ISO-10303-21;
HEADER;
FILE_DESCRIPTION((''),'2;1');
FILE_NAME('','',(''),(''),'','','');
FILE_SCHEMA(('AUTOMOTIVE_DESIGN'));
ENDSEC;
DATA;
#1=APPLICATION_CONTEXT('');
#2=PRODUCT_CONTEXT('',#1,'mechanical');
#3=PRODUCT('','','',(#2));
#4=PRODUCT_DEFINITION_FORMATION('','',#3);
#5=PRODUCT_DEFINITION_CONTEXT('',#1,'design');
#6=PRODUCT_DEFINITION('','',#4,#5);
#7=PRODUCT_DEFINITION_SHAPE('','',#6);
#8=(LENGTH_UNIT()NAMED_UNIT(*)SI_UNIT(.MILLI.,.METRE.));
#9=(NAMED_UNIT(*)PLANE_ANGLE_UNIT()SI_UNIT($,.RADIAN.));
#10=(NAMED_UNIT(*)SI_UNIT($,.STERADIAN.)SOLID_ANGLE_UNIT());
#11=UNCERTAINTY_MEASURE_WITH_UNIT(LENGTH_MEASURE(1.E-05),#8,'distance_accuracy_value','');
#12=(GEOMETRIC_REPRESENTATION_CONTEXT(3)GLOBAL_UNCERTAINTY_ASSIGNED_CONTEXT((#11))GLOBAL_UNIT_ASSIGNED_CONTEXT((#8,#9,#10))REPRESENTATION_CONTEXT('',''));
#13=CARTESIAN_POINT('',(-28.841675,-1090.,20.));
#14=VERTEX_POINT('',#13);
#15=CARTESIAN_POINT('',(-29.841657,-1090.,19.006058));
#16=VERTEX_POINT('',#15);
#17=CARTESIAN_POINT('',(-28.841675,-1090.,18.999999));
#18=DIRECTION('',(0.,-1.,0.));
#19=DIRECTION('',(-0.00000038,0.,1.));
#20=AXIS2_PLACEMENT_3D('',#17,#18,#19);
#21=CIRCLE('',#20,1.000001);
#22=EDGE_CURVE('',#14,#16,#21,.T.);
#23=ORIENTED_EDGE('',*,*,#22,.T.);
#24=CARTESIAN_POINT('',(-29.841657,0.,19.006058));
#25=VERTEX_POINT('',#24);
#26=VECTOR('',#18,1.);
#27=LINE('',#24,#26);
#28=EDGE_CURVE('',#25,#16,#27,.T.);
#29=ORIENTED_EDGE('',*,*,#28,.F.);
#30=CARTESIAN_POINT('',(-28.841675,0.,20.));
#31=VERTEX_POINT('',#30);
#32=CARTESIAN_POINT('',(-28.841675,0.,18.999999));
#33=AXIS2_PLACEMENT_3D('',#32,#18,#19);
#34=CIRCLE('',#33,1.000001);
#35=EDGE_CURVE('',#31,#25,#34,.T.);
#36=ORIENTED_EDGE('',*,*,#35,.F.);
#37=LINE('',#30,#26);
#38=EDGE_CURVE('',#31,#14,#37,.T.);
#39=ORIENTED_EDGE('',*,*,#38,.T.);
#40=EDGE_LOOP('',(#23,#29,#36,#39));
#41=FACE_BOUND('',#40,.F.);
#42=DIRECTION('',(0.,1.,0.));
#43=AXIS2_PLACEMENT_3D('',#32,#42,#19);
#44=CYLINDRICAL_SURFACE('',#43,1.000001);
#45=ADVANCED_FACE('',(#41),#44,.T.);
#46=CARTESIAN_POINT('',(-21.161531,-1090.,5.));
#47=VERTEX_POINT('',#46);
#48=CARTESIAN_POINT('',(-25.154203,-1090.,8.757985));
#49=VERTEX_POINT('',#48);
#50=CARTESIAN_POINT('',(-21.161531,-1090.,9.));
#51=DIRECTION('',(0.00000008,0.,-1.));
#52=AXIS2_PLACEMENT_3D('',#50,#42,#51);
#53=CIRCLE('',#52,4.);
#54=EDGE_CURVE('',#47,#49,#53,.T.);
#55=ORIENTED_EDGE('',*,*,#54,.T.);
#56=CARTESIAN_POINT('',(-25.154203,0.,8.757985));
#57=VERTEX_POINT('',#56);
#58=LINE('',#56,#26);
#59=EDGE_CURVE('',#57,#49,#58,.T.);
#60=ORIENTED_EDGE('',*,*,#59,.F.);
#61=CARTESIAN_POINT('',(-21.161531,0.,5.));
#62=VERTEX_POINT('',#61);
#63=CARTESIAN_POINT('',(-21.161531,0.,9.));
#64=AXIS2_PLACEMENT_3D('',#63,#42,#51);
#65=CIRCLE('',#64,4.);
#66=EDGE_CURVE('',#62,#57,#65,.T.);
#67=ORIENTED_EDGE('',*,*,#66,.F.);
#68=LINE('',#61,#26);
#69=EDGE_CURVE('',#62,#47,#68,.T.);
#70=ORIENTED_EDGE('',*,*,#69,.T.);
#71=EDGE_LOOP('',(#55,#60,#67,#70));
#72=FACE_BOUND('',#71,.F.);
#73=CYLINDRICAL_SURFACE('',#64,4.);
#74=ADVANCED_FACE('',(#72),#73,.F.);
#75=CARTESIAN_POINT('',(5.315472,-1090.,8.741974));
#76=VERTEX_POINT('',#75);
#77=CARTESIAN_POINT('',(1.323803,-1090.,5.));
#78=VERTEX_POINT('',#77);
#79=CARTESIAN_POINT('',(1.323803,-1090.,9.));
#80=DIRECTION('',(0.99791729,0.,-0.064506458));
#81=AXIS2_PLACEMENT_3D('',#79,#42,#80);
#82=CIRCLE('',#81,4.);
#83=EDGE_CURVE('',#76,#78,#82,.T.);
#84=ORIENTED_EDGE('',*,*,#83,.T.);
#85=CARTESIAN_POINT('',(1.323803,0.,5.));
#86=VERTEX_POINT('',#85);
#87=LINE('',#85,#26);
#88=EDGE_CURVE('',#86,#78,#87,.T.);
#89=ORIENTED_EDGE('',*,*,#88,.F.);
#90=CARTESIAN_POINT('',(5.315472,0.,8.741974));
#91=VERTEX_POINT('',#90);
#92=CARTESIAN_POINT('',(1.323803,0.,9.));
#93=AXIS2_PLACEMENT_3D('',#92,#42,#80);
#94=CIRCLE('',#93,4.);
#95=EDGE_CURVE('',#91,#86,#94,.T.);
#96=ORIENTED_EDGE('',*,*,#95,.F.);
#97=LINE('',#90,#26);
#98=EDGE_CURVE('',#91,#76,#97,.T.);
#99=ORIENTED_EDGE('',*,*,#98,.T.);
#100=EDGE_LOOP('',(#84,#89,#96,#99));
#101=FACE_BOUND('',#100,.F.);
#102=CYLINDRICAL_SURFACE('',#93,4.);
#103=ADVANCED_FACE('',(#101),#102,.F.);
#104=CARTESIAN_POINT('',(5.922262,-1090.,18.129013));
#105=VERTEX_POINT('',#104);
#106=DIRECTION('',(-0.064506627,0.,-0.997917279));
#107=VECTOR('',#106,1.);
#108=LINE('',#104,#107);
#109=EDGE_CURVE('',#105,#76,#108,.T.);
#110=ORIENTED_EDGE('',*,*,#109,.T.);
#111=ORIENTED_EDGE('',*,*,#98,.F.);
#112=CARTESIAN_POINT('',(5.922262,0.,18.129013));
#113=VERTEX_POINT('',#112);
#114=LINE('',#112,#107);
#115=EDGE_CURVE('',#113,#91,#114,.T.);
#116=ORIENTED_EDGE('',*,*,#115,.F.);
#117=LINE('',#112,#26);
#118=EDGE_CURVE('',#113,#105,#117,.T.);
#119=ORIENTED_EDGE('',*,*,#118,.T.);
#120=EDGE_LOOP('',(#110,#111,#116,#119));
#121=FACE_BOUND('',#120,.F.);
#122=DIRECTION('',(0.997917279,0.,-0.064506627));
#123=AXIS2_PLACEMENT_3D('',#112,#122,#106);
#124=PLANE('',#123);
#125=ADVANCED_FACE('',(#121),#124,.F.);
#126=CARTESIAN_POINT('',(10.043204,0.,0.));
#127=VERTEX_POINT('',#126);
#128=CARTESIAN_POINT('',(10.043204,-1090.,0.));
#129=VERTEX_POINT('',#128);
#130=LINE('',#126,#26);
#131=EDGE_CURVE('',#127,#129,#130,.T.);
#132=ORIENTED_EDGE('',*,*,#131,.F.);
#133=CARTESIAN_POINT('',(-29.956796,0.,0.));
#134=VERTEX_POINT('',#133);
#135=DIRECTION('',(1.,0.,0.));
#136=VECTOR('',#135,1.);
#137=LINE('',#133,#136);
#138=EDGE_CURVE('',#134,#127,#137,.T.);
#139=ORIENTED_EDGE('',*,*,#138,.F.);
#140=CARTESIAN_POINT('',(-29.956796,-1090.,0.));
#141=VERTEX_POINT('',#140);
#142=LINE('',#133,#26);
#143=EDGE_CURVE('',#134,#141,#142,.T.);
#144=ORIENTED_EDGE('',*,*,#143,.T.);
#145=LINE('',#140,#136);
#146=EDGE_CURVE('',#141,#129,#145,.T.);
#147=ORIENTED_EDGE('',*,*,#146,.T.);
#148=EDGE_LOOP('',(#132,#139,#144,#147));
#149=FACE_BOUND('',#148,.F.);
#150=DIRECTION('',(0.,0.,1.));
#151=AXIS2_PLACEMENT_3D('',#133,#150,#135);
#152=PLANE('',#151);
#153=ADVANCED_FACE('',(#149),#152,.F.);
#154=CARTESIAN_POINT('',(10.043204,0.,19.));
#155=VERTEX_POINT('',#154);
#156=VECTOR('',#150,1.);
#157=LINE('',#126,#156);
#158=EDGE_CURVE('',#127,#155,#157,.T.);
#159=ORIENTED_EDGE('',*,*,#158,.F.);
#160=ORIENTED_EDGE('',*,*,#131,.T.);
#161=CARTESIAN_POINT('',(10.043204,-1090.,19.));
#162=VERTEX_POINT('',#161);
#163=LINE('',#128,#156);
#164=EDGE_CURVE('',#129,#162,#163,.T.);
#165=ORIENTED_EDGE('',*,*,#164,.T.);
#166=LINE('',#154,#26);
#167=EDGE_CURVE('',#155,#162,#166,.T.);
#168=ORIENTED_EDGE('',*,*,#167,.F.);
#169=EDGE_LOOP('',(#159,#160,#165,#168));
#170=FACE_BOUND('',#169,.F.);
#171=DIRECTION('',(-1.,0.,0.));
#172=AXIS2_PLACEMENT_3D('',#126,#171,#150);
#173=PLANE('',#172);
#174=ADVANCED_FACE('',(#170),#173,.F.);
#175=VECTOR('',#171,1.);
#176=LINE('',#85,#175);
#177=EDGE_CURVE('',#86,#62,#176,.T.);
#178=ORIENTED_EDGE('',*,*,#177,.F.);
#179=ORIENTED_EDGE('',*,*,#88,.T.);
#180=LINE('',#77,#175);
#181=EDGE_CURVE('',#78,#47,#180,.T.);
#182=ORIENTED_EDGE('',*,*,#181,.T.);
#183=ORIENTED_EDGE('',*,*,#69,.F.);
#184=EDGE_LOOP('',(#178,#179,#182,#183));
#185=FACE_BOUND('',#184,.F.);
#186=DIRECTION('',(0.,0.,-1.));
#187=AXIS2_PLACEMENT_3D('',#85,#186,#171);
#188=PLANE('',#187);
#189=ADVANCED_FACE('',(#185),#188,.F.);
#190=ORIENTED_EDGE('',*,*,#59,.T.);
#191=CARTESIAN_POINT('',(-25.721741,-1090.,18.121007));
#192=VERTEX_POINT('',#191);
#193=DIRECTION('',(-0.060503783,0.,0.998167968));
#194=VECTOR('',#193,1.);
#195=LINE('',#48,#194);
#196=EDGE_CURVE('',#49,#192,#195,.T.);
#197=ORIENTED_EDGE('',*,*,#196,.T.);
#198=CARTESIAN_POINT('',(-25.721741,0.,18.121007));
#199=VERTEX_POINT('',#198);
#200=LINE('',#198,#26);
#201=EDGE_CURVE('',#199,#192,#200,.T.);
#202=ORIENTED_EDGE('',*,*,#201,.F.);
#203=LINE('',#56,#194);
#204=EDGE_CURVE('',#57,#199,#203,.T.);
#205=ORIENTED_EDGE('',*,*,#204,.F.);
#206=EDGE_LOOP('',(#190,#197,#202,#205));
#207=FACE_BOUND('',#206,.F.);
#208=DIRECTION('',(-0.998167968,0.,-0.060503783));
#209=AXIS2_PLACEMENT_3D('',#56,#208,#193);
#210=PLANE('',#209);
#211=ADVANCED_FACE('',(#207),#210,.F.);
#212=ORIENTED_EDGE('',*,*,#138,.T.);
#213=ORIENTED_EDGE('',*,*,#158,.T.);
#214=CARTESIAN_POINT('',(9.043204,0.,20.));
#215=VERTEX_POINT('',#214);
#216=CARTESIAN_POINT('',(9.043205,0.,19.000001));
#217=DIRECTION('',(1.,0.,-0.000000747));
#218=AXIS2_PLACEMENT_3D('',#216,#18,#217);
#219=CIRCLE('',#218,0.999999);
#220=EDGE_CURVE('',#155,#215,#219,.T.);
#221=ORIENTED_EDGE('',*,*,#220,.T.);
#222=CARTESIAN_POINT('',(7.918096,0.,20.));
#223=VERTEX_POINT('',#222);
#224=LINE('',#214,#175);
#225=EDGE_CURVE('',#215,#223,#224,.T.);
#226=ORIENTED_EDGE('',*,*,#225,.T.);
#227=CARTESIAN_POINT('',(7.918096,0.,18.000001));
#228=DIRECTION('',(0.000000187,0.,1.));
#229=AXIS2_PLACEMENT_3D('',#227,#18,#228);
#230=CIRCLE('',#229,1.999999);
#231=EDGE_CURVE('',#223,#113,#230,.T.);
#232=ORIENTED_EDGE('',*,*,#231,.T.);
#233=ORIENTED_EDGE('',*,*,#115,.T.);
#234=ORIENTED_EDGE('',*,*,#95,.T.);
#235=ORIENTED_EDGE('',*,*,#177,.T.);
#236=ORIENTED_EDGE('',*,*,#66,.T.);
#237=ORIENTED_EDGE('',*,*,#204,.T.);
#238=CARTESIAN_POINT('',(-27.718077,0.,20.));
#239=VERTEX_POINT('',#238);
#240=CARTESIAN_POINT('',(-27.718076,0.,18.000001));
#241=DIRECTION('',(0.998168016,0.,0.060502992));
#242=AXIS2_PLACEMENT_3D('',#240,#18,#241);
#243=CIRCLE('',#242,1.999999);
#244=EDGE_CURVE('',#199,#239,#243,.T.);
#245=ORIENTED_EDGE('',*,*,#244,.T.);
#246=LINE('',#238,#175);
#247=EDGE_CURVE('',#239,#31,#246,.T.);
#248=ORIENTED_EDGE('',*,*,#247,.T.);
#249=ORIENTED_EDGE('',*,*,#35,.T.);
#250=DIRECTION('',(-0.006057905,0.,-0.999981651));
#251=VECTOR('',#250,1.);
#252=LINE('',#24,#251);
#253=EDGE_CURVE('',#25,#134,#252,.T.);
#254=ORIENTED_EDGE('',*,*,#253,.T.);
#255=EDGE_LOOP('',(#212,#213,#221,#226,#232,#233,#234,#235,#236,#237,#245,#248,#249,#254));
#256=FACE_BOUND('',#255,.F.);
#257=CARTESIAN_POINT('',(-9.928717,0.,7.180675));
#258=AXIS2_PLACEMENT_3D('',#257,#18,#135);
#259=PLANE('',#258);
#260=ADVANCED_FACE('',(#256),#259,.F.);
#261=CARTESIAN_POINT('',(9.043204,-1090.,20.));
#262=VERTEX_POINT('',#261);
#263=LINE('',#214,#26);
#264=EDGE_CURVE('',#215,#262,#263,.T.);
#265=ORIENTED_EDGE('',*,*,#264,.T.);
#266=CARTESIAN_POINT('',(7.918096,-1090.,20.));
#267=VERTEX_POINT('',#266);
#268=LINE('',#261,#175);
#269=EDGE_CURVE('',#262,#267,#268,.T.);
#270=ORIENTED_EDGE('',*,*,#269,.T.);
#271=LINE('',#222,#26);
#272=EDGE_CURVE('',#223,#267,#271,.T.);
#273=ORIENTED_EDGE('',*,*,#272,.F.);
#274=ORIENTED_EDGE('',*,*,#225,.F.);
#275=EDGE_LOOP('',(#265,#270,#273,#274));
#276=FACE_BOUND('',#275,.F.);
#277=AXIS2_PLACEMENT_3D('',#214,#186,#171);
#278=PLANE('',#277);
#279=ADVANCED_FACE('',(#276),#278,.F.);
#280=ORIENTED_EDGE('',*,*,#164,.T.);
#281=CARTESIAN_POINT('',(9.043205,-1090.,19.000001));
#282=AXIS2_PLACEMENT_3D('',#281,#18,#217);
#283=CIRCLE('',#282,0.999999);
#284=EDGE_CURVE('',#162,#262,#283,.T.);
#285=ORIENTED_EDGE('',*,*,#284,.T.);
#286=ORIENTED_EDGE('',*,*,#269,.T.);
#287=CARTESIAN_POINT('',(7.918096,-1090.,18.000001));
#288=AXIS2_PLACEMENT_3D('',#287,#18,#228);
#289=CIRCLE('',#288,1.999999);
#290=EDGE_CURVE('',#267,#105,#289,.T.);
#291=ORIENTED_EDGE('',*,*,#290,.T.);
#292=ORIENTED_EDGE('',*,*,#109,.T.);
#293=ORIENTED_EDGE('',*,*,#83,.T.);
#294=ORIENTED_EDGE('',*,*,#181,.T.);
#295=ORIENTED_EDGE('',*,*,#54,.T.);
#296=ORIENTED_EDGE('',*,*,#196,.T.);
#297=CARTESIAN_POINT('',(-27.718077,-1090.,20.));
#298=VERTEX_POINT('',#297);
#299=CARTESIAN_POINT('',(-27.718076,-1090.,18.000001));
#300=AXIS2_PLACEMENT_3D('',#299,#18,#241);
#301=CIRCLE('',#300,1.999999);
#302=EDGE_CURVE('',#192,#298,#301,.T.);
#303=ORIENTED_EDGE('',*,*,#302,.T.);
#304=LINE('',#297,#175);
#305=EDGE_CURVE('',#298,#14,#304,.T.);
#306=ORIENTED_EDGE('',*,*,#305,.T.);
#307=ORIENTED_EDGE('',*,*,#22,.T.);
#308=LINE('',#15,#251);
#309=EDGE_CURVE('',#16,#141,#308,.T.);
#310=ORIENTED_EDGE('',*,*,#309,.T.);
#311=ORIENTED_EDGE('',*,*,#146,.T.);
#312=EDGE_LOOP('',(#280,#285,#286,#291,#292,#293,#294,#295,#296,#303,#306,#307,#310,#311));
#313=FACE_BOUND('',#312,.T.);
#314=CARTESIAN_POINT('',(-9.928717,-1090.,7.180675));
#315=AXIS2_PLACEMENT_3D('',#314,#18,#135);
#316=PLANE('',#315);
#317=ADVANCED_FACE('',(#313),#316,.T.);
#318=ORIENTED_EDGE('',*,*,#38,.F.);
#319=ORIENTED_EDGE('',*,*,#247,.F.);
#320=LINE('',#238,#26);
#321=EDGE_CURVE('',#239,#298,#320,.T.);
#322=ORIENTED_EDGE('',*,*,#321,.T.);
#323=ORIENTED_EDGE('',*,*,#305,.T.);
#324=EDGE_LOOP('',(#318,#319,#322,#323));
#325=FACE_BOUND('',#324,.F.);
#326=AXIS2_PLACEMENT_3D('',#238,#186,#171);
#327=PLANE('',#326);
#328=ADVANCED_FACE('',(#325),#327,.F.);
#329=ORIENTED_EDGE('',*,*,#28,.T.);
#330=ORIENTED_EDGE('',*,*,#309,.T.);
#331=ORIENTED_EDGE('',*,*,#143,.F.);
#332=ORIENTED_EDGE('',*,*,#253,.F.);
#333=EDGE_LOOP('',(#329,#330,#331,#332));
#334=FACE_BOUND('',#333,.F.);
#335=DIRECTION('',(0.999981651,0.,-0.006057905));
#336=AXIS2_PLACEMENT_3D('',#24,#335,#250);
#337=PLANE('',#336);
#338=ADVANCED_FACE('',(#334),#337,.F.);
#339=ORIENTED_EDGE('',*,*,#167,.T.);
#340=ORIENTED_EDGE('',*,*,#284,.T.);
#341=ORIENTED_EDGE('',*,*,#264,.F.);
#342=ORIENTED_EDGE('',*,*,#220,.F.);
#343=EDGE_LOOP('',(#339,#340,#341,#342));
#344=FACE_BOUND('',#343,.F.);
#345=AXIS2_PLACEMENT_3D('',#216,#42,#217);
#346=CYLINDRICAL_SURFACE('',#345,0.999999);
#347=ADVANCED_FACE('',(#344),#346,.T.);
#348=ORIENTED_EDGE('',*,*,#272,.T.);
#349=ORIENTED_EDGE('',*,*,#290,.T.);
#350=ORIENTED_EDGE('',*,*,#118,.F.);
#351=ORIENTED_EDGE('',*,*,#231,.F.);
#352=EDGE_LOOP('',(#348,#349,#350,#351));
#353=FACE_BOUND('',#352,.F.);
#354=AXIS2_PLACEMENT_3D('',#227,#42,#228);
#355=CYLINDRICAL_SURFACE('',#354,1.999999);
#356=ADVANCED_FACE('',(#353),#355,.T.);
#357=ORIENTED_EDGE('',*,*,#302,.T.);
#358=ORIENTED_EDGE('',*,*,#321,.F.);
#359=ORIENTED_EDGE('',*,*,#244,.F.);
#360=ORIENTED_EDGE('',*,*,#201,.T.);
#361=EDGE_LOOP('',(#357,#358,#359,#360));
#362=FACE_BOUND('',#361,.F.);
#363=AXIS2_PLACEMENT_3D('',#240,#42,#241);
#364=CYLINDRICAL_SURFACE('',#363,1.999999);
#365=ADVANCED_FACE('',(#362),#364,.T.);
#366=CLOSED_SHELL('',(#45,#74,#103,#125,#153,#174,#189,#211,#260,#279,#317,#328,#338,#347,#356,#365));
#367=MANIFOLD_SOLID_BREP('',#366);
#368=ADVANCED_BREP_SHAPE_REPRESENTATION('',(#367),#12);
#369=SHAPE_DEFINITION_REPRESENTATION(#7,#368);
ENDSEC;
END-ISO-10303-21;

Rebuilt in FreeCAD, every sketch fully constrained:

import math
import FreeCAD as App
import Part
import Sketcher
from FreeCAD import Vector

doc = App.newDocument("Part")
body = doc.addObject("PartDesign::Body", "Body")

sketch1 = doc.addObject("Sketcher::SketchObject", "Sketch")
body.addObject(sketch1)
sketch1.AttachmentSupport = (doc.XZ_Plane, [""])
sketch1.MapMode = "FlatFace"
sketch1.addGeometry(Part.LineSegment(Vector(-29.8, 19, 0), Vector(-30, 0, 0)), False)
sketch1.addGeometry(Part.LineSegment(Vector(-30, 0, 0), Vector(10, 0, 0)), False)
sketch1.addGeometry(Part.LineSegment(Vector(10, 0, 0), Vector(10, 19, 0)), False)
sketch1.addGeometry(Part.ArcOfCircle(Part.Circle(Vector(9, 19, 0), Vector(0, 0, 1), 1), math.radians(0), math.radians(90)), False)
sketch1.addGeometry(Part.LineSegment(Vector(9, 20, 0), Vector(7.9, 20, 0)), False)
sketch1.addGeometry(Part.ArcOfCircle(Part.Circle(Vector(7.9, 18, 0), Vector(0, 0, 1), 2), math.radians(90), math.radians(176)), False)
sketch1.addGeometry(Part.LineSegment(Vector(5.9, 18.1, 0), Vector(5.3, 8.7, 0)), False)
sketch1.addGeometry(Part.ArcOfCircle(Part.Circle(Vector(1.3, 9, 0), Vector(0, 0, 1), 4), math.radians(-90), math.radians(-4)), False)
sketch1.addGeometry(Part.LineSegment(Vector(1.3, 5, 0), Vector(-21.2, 5, 0)), False)
sketch1.addGeometry(Part.ArcOfCircle(Part.Circle(Vector(-21.2, 9, 0), Vector(0, 0, 1), 4), math.radians(-177), math.radians(-90)), False)
sketch1.addGeometry(Part.LineSegment(Vector(-25.2, 8.8, 0), Vector(-25.7, 18.1, 0)), False)
sketch1.addGeometry(Part.ArcOfCircle(Part.Circle(Vector(-27.7, 18, 0), Vector(0, 0, 1), 2), math.radians(3), math.radians(90)), False)
sketch1.addGeometry(Part.LineSegment(Vector(-27.7, 20, 0), Vector(-28.8, 20, 0)), False)
sketch1.addGeometry(Part.ArcOfCircle(Part.Circle(Vector(-28.8, 19, 0), Vector(0, 0, 1), 1), math.radians(90), math.radians(180)), False)
sketch1.addConstraint(Sketcher.Constraint("Coincident", 0, 2, 1, 1))
sketch1.addConstraint(Sketcher.Constraint("Coincident", 1, 2, 2, 1))
sketch1.addConstraint(Sketcher.Constraint("Tangent", 2, 2, 3, 1))
sketch1.addConstraint(Sketcher.Constraint("Tangent", 3, 2, 4, 1))
sketch1.addConstraint(Sketcher.Constraint("Tangent", 4, 2, 5, 1))
sketch1.addConstraint(Sketcher.Constraint("Tangent", 5, 2, 6, 1))
sketch1.addConstraint(Sketcher.Constraint("Tangent", 6, 2, 7, 2))
sketch1.addConstraint(Sketcher.Constraint("Tangent", 7, 1, 8, 1))
sketch1.addConstraint(Sketcher.Constraint("Tangent", 8, 2, 9, 2))
sketch1.addConstraint(Sketcher.Constraint("Tangent", 9, 1, 10, 1))
sketch1.addConstraint(Sketcher.Constraint("Tangent", 10, 2, 11, 1))
sketch1.addConstraint(Sketcher.Constraint("Tangent", 11, 2, 12, 1))
sketch1.addConstraint(Sketcher.Constraint("Tangent", 12, 2, 13, 1))
sketch1.addConstraint(Sketcher.Constraint("Tangent", 13, 2, 0, 1))
sketch1.addConstraint(Sketcher.Constraint("Horizontal", 1))
sketch1.addConstraint(Sketcher.Constraint("Vertical", 2))
sketch1.addConstraint(Sketcher.Constraint("Horizontal", 4))
sketch1.addConstraint(Sketcher.Constraint("Horizontal", 8))
sketch1.addConstraint(Sketcher.Constraint("Horizontal", 12))
sketch1.addConstraint(Sketcher.Constraint("Equal", 7, 9))
sketch1.addConstraint(Sketcher.Constraint("Equal", 5, 11))
sketch1.addConstraint(Sketcher.Constraint("Equal", 3, 13))
sketch1.addConstraint(Sketcher.Constraint("PointOnObject", 0, 2, -1))
sketch1.addConstraint(Sketcher.Constraint("Horizontal", 5, 3, 11, 3))
sketch1.addConstraint(Sketcher.Constraint("Radius", 3, 0.999999))
sketch1.addConstraint(Sketcher.Constraint("Radius", 5, 1.999999))
sketch1.addConstraint(Sketcher.Constraint("Radius", 7, 4.0))
sketch1.addConstraint(Sketcher.Constraint("DistanceX", 1, 1, 1, 2, 40.0))
sketch1.addConstraint(Sketcher.Constraint("DistanceY", 2, 1, 2, 2, 19.0))
sketch1.addConstraint(Sketcher.Constraint("DistanceY", -1, 1, 7, 3, 9.0))
sketch1.addConstraint(Sketcher.Constraint("DistanceX", 7, 3, 3, 3, 7.719402))
sketch1.addConstraint(Sketcher.Constraint("DistanceX", 13, 3, 11, 3, 1.123599))
sketch1.addConstraint(Sketcher.Constraint("Distance", 6, 9.40663))
sketch1.addConstraint(Sketcher.Constraint("DistanceX", 8, 2, 8, 1, 22.485334))
sketch1.addConstraint(Sketcher.Constraint("DistanceX", 9, 3, -1, 1, 21.161531))
sketch1.addConstraint(Sketcher.Constraint("DistanceX", 10, 2, -1, 1, 25.721741))
pad1 = doc.addObject("PartDesign::Pad", "Pad")
body.addObject(pad1)
pad1.Profile = sketch1
pad1.Length = 1090

doc.recompute()
